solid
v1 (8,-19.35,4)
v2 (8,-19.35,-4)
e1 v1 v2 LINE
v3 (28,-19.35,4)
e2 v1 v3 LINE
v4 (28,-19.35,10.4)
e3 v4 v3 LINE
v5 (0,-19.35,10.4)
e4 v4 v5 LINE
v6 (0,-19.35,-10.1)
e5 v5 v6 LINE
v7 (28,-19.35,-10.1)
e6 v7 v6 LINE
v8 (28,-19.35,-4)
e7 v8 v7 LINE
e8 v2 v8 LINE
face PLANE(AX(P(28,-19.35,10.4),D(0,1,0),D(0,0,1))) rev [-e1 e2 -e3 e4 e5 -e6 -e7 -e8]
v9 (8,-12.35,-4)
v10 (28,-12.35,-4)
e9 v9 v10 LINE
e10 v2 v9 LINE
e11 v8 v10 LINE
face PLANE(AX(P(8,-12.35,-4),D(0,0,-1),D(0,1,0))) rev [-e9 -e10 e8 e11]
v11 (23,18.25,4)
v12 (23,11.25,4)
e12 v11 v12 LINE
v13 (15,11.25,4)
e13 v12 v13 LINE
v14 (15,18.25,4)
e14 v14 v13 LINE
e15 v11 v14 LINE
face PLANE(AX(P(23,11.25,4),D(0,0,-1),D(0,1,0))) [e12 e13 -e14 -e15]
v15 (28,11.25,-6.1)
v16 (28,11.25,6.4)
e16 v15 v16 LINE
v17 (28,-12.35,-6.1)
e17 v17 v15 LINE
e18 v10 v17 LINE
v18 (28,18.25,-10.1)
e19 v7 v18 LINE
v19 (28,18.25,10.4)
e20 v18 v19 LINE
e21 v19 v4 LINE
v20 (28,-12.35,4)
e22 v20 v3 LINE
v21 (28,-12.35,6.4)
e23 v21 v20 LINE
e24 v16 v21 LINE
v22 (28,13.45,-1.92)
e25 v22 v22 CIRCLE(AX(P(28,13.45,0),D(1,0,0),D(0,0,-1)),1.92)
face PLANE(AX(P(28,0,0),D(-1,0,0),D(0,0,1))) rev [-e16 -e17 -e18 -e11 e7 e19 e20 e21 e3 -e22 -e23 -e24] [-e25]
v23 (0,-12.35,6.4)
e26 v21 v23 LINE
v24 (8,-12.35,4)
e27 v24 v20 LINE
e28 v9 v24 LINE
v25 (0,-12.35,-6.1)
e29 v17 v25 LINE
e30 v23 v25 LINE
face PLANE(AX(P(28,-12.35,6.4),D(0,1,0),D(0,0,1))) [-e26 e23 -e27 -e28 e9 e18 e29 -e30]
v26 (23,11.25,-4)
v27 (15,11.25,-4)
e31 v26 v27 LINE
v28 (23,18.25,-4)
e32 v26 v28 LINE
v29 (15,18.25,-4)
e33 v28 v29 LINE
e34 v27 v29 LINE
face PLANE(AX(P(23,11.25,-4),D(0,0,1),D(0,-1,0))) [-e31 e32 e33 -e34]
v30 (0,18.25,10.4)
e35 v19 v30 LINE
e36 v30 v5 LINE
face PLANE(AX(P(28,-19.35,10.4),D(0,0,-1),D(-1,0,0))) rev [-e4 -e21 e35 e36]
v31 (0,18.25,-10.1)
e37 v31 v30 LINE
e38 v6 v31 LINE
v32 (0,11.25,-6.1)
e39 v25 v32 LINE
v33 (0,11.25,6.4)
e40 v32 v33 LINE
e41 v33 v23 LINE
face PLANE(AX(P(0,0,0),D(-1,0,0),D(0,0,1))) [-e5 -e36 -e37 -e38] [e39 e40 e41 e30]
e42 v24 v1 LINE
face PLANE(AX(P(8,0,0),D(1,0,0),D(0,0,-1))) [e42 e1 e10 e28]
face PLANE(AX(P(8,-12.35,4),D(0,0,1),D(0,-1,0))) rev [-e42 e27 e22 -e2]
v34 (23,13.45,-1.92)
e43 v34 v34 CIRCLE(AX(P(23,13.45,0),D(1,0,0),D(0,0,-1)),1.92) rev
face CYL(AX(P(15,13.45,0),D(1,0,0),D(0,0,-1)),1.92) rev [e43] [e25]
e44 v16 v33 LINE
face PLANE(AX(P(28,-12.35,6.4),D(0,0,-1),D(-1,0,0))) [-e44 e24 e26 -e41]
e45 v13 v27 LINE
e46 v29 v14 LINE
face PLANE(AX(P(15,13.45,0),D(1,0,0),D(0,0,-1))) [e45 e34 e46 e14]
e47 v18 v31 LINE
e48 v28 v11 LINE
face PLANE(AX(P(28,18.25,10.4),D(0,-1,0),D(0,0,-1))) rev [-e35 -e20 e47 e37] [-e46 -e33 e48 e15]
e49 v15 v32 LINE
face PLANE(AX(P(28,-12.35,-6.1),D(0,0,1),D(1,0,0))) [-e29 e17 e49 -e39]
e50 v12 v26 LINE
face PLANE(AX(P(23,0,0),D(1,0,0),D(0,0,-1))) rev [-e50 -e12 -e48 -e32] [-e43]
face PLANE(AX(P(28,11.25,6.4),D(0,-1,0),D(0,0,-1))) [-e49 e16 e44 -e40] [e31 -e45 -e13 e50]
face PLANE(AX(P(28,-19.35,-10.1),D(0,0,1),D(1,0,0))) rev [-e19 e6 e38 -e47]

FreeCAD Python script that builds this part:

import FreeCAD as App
import Part
import Sketcher
from FreeCAD import Vector

doc = App.newDocument("Part")
body = doc.addObject("PartDesign::Body", "Body")

# Sketch on YZ plane
sketch1 = body.newObject("Sketcher::SketchObject", "Sketch")
sketch1.AttachmentSupport = (doc.getObject("YZ_Plane"), [""])
sketch1.MapMode = "FlatFace"
sketch1.addGeometry(Part.LineSegment(Vector(18.25, 10.4, 0), Vector(-19.35, 10.4, 0)), False)
sketch1.addGeometry(Part.LineSegment(Vector(-19.35, 10.4, 0), Vector(-19.35, -10.1, 0)), False)
sketch1.addGeometry(Part.LineSegment(Vector(-19.35, -10.1, 0), Vector(18.25, -10.1, 0)), False)
sketch1.addGeometry(Part.LineSegment(Vector(18.25, -10.1, 0), Vector(18.25, 10.4, 0)), False)
sketch1.addGeometry(Part.LineSegment(Vector(-12.35, -6.1, 0), Vector(-12.35, 6.4, 0)), False)
sketch1.addGeometry(Part.LineSegment(Vector(-12.35, 6.4, 0), Vector(11.25, 6.4, 0)), False)
sketch1.addGeometry(Part.LineSegment(Vector(11.25, 6.4, 0), Vector(11.25, -6.1, 0)), False)
sketch1.addGeometry(Part.LineSegment(Vector(11.25, -6.1, 0), Vector(-12.35, -6.1, 0)), False)
sketch1.addConstraint(Sketcher.Constraint("Coincident", 0, 2, 1, 1))
sketch1.addConstraint(Sketcher.Constraint("Coincident", 1, 2, 2, 1))
sketch1.addConstraint(Sketcher.Constraint("Coincident", 2, 2, 3, 1))
sketch1.addConstraint(Sketcher.Constraint("Coincident", 3, 2, 0, 1))
sketch1.addConstraint(Sketcher.Constraint("Coincident", 4, 2, 5, 1))
sketch1.addConstraint(Sketcher.Constraint("Coincident", 5, 2, 6, 1))
sketch1.addConstraint(Sketcher.Constraint("Coincident", 6, 2, 7, 1))
sketch1.addConstraint(Sketcher.Constraint("Coincident", 7, 2, 4, 1))
sketch1.addConstraint(Sketcher.Constraint("Horizontal", 0))
sketch1.addConstraint(Sketcher.Constraint("Vertical", 1))
sketch1.addConstraint(Sketcher.Constraint("Horizontal", 2))
sketch1.addConstraint(Sketcher.Constraint("Vertical", 3))
sketch1.addConstraint(Sketcher.Constraint("Vertical", 4))
sketch1.addConstraint(Sketcher.Constraint("Horizontal", 5))
sketch1.addConstraint(Sketcher.Constraint("Vertical", 6))
sketch1.addConstraint(Sketcher.Constraint("Horizontal", 7))
sketch1.addConstraint(Sketcher.Constraint("DistanceX", 0, 2, 0, 1, 37.6))
sketch1.addConstraint(Sketcher.Constraint("DistanceX", 5, 1, 5, 2, 23.6))
sketch1.addConstraint(Sketcher.Constraint("DistanceY", 1, 2, 1, 1, 20.5))
sketch1.addConstraint(Sketcher.Constraint("DistanceY", 4, 1, 4, 2, 12.5))
sketch1.addConstraint(Sketcher.Constraint("DistanceX", 0, 2, 4, 2, 7.0))
sketch1.addConstraint(Sketcher.Constraint("DistanceY", 4, 2, 0, 2, 4.0))
sketch1.addConstraint(Sketcher.Constraint("DistanceY", -1, 1, 0, 2, 10.4))
sketch1.addConstraint(Sketcher.Constraint("DistanceX", 0, 2, -1, 1, 19.35))
pad1 = body.newObject("PartDesign::Pad", "Pad")
pad1.Profile = sketch1
pad1.Length = 28

# Sketch on YZ plane
sketch2 = body.newObject("Sketcher::SketchObject", "Sketch001")
sketch2.AttachmentSupport = (doc.getObject("YZ_Plane"), [""])
sketch2.MapMode = "FlatFace"
sketch2.AttachmentOffset = App.Placement(Vector(0, 0, 28), App.Rotation())
sketch2.addGeometry(Part.Circle(Vector(13.45, 0, 0), Vector(0, 0, 1), 1.92), False)
sketch2.addConstraint(Sketcher.Constraint("PointOnObject", 0, 3, -1))
sketch2.addConstraint(Sketcher.Constraint("Diameter", 0, 3.84))
sketch2.addConstraint(Sketcher.Constraint("DistanceX", -1, 1, 0, 3, 13.45))
pocket1 = body.newObject("PartDesign::Pocket", "Pocket")
pocket1.Profile = sketch2
pocket1.Length = 13

# Sketch on YZ plane
sketch3 = body.newObject("Sketcher::SketchObject", "Sketch002")
sketch3.AttachmentSupport = (doc.getObject("YZ_Plane"), [""])
sketch3.MapMode = "FlatFace"
sketch3.AttachmentOffset = App.Placement(Vector(0, 0, 15), App.Rotation())
sketch3.addGeometry(Part.LineSegment(Vector(18.25, 4, 0), Vector(11.25, 4, 0)), False)
sketch3.addGeometry(Part.LineSegment(Vector(11.25, 4, 0), Vector(11.25, -4, 0)), False)
sketch3.addGeometry(Part.LineSegment(Vector(11.25, -4, 0), Vector(18.25, -4, 0)), False)
sketch3.addGeometry(Part.LineSegment(Vector(18.25, -4, 0), Vector(18.25, 4, 0)), False)
sketch3.addConstraint(Sketcher.Constraint("Coincident", 0, 2, 1, 1))
sketch3.addConstraint(Sketcher.Constraint("Coincident", 1, 2, 2, 1))
sketch3.addConstraint(Sketcher.Constraint("Coincident", 2, 2, 3, 1))
sketch3.addConstraint(Sketcher.Constraint("Coincident", 3, 2, 0, 1))
sketch3.addConstraint(Sketcher.Constraint("Horizontal", 0))
sketch3.addConstraint(Sketcher.Constraint("Vertical", 1))
sketch3.addConstraint(Sketcher.Constraint("Horizontal", 2))
sketch3.addConstraint(Sketcher.Constraint("Vertical", 3))
sketch3.addConstraint(Sketcher.Constraint("DistanceX", 0, 2, 0, 1, 7.0))
sketch3.addConstraint(Sketcher.Constraint("DistanceY", 1, 2, 1, 1, 8.0))
sketch3.addConstraint(Sketcher.Constraint("DistanceY", -1, 1, 0, 2, 4.0))
sketch3.addConstraint(Sketcher.Constraint("DistanceX", -1, 1, 0, 2, 11.25))
pocket2 = body.newObject("PartDesign::Pocket", "Pocket001")
pocket2.Profile = sketch3
pocket2.Length = 8
pocket2.Reversed = True

# Sketch on YZ plane
sketch4 = body.newObject("Sketcher::SketchObject", "Sketch003")
sketch4.AttachmentSupport = (doc.getObject("YZ_Plane"), [""])
sketch4.MapMode = "FlatFace"
sketch4.AttachmentOffset = App.Placement(Vector(0, 0, 28), App.Rotation())
sketch4.addGeometry(Part.LineSegment(Vector(-12.35, 4, 0), Vector(-19.35, 4, 0)), False)
sketch4.addGeometry(Part.LineSegment(Vector(-19.35, 4, 0), Vector(-19.35, -4, 0)), False)
sketch4.addGeometry(Part.LineSegment(Vector(-19.35, -4, 0), Vector(-12.35, -4, 0)), False)
sketch4.addGeometry(Part.LineSegment(Vector(-12.35, -4, 0), Vector(-12.35, 4, 0)), False)
sketch4.addConstraint(Sketcher.Constraint("Coincident", 0, 2, 1, 1))
sketch4.addConstraint(Sketcher.Constraint("Coincident", 1, 2, 2, 1))
sketch4.addConstraint(Sketcher.Constraint("Coincident", 2, 2, 3, 1))
sketch4.addConstraint(Sketcher.Constraint("Coincident", 3, 2, 0, 1))
sketch4.addConstraint(Sketcher.Constraint("Horizontal", 0))
sketch4.addConstraint(Sketcher.Constraint("Vertical", 1))
sketch4.addConstraint(Sketcher.Constraint("Horizontal", 2))
sketch4.addConstraint(Sketcher.Constraint("Vertical", 3))
sketch4.addConstraint(Sketcher.Constraint("DistanceX", 0, 2, 0, 1, 7.0))
sketch4.addConstraint(Sketcher.Constraint("DistanceY", 1, 2, 1, 1, 8.0))
sketch4.addConstraint(Sketcher.Constraint("DistanceY", -1, 1, 0, 2, 4.0))
sketch4.addConstraint(Sketcher.Constraint("DistanceX", 0, 2, -1, 1, 19.35))
pocket3 = body.newObject("PartDesign::Pocket", "Pocket002")
pocket3.Profile = sketch4
pocket3.Length = 20

doc.recompute()
